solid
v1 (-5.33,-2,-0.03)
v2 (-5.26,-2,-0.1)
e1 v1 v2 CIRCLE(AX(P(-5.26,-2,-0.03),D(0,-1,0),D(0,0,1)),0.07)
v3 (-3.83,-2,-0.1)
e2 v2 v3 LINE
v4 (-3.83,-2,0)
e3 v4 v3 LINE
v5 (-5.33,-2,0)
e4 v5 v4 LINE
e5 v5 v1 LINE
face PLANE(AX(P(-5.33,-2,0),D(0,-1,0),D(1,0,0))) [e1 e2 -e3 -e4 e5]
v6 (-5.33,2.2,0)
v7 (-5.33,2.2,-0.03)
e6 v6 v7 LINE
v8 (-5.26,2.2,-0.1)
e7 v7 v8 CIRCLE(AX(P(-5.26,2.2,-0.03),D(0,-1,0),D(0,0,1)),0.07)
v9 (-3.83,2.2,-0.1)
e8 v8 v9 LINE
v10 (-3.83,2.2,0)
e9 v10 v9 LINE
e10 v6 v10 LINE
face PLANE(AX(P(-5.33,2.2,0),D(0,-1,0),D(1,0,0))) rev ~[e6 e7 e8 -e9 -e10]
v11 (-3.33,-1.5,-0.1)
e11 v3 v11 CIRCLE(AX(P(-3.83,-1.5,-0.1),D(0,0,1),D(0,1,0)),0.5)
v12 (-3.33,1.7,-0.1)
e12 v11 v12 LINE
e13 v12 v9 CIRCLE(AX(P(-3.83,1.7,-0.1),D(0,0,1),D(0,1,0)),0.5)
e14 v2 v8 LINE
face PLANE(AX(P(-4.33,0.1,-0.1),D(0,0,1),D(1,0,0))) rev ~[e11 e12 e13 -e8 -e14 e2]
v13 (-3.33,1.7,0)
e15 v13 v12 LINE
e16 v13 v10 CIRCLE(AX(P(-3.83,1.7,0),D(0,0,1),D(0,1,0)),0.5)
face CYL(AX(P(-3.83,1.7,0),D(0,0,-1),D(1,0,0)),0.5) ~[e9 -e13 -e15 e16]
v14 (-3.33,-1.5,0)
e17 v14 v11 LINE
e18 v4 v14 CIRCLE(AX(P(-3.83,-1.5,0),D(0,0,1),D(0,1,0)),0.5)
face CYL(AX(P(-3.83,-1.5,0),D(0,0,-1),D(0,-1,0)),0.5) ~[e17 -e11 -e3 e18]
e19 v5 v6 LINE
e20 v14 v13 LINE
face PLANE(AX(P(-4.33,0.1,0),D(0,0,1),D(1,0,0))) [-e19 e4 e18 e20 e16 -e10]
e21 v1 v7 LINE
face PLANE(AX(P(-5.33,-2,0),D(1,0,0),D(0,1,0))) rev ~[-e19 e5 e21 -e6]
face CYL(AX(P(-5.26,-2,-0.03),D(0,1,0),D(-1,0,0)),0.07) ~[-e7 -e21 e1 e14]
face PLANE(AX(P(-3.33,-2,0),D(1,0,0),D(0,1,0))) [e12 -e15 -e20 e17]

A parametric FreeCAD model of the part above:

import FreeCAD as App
import Part
import Sketcher
Q = App.Units.Quantity


def edges_at(feature, points):
    """Names of the edges that pass closest to the given points."""
    edges = feature.Shape.Edges
    near = lambda p: min(range(len(edges)), key=lambda i: edges[i].distToShape(Part.Vertex(*p))[0])
    return sorted({f"Edge{near(p) + 1}" for p in points})

doc = App.newDocument("Part")
body = doc.addObject("PartDesign::Body", "Body")

# Sketch on XY plane
sketch1 = body.newObject("Sketcher::SketchObject", "Sketch")
sketch1.AttachmentSupport = (doc.getObject("XY_Plane"), [""])
sketch1.MapMode = "FlatFace"
sketch1.addGeometry([
    Part.LineSegment(App.Vector(-5.3, 2.2, 0), App.Vector(-5.3, -2, 0)),
    Part.LineSegment(App.Vector(-5.3, -2, 0), App.Vector(-3.3, -2, 0)),
    Part.LineSegment(App.Vector(-3.3, -2, 0), App.Vector(-3.3, 2.2, 0)),
    Part.LineSegment(App.Vector(-3.3, 2.2, 0), App.Vector(-5.3, 2.2, 0)),
], False)
sketch1.addConstraint([
    Sketcher.Constraint("Coincident", 0, 2, 1, 1),
    Sketcher.Constraint("Coincident", 1, 2, 2, 1),
    Sketcher.Constraint("Coincident", 2, 2, 3, 1),
    Sketcher.Constraint("Coincident", 3, 2, 0, 1),
    Sketcher.Constraint("Vertical", 0),
    Sketcher.Constraint("Horizontal", 1),
    Sketcher.Constraint("Vertical", 2),
    Sketcher.Constraint("Horizontal", 3),
    Sketcher.Constraint("DistanceX", 1, 1, 1, 2, Q("2 mm")),
    Sketcher.Constraint("DistanceY", 0, 2, 0, 1, Q("4.2 mm")),
    Sketcher.Constraint("DistanceY", 0, 2, -1, 1, Q("2 mm")),
    Sketcher.Constraint("DistanceX", 0, 2, -1, 1, Q("5.33 mm")),
])
pad1 = body.newObject("PartDesign::Pad", "Pad")
pad1.Profile = sketch1
pad1.Length = 0.1
pad1.Reversed = True
doc.recompute()

fillet = body.newObject("PartDesign::Fillet", "Fillet")
fillet.Base = (pad1, edges_at(pad1, [(-5.33, 0.1, -0.1)]))
fillet.Radius = 0.07
doc.recompute()

fillet2 = body.newObject("PartDesign::Fillet", "Fillet001")
fillet2.Base = (fillet, edges_at(fillet, [(-3.33, -2, -0.05)]))
fillet2.Radius = 0.5
doc.recompute()

fillet3 = body.newObject("PartDesign::Fillet", "Fillet002")
fillet3.Base = (fillet2, edges_at(fillet2, [(-3.33, 2.2, -0.05)]))
fillet3.Radius = 0.5

doc.recompute()
